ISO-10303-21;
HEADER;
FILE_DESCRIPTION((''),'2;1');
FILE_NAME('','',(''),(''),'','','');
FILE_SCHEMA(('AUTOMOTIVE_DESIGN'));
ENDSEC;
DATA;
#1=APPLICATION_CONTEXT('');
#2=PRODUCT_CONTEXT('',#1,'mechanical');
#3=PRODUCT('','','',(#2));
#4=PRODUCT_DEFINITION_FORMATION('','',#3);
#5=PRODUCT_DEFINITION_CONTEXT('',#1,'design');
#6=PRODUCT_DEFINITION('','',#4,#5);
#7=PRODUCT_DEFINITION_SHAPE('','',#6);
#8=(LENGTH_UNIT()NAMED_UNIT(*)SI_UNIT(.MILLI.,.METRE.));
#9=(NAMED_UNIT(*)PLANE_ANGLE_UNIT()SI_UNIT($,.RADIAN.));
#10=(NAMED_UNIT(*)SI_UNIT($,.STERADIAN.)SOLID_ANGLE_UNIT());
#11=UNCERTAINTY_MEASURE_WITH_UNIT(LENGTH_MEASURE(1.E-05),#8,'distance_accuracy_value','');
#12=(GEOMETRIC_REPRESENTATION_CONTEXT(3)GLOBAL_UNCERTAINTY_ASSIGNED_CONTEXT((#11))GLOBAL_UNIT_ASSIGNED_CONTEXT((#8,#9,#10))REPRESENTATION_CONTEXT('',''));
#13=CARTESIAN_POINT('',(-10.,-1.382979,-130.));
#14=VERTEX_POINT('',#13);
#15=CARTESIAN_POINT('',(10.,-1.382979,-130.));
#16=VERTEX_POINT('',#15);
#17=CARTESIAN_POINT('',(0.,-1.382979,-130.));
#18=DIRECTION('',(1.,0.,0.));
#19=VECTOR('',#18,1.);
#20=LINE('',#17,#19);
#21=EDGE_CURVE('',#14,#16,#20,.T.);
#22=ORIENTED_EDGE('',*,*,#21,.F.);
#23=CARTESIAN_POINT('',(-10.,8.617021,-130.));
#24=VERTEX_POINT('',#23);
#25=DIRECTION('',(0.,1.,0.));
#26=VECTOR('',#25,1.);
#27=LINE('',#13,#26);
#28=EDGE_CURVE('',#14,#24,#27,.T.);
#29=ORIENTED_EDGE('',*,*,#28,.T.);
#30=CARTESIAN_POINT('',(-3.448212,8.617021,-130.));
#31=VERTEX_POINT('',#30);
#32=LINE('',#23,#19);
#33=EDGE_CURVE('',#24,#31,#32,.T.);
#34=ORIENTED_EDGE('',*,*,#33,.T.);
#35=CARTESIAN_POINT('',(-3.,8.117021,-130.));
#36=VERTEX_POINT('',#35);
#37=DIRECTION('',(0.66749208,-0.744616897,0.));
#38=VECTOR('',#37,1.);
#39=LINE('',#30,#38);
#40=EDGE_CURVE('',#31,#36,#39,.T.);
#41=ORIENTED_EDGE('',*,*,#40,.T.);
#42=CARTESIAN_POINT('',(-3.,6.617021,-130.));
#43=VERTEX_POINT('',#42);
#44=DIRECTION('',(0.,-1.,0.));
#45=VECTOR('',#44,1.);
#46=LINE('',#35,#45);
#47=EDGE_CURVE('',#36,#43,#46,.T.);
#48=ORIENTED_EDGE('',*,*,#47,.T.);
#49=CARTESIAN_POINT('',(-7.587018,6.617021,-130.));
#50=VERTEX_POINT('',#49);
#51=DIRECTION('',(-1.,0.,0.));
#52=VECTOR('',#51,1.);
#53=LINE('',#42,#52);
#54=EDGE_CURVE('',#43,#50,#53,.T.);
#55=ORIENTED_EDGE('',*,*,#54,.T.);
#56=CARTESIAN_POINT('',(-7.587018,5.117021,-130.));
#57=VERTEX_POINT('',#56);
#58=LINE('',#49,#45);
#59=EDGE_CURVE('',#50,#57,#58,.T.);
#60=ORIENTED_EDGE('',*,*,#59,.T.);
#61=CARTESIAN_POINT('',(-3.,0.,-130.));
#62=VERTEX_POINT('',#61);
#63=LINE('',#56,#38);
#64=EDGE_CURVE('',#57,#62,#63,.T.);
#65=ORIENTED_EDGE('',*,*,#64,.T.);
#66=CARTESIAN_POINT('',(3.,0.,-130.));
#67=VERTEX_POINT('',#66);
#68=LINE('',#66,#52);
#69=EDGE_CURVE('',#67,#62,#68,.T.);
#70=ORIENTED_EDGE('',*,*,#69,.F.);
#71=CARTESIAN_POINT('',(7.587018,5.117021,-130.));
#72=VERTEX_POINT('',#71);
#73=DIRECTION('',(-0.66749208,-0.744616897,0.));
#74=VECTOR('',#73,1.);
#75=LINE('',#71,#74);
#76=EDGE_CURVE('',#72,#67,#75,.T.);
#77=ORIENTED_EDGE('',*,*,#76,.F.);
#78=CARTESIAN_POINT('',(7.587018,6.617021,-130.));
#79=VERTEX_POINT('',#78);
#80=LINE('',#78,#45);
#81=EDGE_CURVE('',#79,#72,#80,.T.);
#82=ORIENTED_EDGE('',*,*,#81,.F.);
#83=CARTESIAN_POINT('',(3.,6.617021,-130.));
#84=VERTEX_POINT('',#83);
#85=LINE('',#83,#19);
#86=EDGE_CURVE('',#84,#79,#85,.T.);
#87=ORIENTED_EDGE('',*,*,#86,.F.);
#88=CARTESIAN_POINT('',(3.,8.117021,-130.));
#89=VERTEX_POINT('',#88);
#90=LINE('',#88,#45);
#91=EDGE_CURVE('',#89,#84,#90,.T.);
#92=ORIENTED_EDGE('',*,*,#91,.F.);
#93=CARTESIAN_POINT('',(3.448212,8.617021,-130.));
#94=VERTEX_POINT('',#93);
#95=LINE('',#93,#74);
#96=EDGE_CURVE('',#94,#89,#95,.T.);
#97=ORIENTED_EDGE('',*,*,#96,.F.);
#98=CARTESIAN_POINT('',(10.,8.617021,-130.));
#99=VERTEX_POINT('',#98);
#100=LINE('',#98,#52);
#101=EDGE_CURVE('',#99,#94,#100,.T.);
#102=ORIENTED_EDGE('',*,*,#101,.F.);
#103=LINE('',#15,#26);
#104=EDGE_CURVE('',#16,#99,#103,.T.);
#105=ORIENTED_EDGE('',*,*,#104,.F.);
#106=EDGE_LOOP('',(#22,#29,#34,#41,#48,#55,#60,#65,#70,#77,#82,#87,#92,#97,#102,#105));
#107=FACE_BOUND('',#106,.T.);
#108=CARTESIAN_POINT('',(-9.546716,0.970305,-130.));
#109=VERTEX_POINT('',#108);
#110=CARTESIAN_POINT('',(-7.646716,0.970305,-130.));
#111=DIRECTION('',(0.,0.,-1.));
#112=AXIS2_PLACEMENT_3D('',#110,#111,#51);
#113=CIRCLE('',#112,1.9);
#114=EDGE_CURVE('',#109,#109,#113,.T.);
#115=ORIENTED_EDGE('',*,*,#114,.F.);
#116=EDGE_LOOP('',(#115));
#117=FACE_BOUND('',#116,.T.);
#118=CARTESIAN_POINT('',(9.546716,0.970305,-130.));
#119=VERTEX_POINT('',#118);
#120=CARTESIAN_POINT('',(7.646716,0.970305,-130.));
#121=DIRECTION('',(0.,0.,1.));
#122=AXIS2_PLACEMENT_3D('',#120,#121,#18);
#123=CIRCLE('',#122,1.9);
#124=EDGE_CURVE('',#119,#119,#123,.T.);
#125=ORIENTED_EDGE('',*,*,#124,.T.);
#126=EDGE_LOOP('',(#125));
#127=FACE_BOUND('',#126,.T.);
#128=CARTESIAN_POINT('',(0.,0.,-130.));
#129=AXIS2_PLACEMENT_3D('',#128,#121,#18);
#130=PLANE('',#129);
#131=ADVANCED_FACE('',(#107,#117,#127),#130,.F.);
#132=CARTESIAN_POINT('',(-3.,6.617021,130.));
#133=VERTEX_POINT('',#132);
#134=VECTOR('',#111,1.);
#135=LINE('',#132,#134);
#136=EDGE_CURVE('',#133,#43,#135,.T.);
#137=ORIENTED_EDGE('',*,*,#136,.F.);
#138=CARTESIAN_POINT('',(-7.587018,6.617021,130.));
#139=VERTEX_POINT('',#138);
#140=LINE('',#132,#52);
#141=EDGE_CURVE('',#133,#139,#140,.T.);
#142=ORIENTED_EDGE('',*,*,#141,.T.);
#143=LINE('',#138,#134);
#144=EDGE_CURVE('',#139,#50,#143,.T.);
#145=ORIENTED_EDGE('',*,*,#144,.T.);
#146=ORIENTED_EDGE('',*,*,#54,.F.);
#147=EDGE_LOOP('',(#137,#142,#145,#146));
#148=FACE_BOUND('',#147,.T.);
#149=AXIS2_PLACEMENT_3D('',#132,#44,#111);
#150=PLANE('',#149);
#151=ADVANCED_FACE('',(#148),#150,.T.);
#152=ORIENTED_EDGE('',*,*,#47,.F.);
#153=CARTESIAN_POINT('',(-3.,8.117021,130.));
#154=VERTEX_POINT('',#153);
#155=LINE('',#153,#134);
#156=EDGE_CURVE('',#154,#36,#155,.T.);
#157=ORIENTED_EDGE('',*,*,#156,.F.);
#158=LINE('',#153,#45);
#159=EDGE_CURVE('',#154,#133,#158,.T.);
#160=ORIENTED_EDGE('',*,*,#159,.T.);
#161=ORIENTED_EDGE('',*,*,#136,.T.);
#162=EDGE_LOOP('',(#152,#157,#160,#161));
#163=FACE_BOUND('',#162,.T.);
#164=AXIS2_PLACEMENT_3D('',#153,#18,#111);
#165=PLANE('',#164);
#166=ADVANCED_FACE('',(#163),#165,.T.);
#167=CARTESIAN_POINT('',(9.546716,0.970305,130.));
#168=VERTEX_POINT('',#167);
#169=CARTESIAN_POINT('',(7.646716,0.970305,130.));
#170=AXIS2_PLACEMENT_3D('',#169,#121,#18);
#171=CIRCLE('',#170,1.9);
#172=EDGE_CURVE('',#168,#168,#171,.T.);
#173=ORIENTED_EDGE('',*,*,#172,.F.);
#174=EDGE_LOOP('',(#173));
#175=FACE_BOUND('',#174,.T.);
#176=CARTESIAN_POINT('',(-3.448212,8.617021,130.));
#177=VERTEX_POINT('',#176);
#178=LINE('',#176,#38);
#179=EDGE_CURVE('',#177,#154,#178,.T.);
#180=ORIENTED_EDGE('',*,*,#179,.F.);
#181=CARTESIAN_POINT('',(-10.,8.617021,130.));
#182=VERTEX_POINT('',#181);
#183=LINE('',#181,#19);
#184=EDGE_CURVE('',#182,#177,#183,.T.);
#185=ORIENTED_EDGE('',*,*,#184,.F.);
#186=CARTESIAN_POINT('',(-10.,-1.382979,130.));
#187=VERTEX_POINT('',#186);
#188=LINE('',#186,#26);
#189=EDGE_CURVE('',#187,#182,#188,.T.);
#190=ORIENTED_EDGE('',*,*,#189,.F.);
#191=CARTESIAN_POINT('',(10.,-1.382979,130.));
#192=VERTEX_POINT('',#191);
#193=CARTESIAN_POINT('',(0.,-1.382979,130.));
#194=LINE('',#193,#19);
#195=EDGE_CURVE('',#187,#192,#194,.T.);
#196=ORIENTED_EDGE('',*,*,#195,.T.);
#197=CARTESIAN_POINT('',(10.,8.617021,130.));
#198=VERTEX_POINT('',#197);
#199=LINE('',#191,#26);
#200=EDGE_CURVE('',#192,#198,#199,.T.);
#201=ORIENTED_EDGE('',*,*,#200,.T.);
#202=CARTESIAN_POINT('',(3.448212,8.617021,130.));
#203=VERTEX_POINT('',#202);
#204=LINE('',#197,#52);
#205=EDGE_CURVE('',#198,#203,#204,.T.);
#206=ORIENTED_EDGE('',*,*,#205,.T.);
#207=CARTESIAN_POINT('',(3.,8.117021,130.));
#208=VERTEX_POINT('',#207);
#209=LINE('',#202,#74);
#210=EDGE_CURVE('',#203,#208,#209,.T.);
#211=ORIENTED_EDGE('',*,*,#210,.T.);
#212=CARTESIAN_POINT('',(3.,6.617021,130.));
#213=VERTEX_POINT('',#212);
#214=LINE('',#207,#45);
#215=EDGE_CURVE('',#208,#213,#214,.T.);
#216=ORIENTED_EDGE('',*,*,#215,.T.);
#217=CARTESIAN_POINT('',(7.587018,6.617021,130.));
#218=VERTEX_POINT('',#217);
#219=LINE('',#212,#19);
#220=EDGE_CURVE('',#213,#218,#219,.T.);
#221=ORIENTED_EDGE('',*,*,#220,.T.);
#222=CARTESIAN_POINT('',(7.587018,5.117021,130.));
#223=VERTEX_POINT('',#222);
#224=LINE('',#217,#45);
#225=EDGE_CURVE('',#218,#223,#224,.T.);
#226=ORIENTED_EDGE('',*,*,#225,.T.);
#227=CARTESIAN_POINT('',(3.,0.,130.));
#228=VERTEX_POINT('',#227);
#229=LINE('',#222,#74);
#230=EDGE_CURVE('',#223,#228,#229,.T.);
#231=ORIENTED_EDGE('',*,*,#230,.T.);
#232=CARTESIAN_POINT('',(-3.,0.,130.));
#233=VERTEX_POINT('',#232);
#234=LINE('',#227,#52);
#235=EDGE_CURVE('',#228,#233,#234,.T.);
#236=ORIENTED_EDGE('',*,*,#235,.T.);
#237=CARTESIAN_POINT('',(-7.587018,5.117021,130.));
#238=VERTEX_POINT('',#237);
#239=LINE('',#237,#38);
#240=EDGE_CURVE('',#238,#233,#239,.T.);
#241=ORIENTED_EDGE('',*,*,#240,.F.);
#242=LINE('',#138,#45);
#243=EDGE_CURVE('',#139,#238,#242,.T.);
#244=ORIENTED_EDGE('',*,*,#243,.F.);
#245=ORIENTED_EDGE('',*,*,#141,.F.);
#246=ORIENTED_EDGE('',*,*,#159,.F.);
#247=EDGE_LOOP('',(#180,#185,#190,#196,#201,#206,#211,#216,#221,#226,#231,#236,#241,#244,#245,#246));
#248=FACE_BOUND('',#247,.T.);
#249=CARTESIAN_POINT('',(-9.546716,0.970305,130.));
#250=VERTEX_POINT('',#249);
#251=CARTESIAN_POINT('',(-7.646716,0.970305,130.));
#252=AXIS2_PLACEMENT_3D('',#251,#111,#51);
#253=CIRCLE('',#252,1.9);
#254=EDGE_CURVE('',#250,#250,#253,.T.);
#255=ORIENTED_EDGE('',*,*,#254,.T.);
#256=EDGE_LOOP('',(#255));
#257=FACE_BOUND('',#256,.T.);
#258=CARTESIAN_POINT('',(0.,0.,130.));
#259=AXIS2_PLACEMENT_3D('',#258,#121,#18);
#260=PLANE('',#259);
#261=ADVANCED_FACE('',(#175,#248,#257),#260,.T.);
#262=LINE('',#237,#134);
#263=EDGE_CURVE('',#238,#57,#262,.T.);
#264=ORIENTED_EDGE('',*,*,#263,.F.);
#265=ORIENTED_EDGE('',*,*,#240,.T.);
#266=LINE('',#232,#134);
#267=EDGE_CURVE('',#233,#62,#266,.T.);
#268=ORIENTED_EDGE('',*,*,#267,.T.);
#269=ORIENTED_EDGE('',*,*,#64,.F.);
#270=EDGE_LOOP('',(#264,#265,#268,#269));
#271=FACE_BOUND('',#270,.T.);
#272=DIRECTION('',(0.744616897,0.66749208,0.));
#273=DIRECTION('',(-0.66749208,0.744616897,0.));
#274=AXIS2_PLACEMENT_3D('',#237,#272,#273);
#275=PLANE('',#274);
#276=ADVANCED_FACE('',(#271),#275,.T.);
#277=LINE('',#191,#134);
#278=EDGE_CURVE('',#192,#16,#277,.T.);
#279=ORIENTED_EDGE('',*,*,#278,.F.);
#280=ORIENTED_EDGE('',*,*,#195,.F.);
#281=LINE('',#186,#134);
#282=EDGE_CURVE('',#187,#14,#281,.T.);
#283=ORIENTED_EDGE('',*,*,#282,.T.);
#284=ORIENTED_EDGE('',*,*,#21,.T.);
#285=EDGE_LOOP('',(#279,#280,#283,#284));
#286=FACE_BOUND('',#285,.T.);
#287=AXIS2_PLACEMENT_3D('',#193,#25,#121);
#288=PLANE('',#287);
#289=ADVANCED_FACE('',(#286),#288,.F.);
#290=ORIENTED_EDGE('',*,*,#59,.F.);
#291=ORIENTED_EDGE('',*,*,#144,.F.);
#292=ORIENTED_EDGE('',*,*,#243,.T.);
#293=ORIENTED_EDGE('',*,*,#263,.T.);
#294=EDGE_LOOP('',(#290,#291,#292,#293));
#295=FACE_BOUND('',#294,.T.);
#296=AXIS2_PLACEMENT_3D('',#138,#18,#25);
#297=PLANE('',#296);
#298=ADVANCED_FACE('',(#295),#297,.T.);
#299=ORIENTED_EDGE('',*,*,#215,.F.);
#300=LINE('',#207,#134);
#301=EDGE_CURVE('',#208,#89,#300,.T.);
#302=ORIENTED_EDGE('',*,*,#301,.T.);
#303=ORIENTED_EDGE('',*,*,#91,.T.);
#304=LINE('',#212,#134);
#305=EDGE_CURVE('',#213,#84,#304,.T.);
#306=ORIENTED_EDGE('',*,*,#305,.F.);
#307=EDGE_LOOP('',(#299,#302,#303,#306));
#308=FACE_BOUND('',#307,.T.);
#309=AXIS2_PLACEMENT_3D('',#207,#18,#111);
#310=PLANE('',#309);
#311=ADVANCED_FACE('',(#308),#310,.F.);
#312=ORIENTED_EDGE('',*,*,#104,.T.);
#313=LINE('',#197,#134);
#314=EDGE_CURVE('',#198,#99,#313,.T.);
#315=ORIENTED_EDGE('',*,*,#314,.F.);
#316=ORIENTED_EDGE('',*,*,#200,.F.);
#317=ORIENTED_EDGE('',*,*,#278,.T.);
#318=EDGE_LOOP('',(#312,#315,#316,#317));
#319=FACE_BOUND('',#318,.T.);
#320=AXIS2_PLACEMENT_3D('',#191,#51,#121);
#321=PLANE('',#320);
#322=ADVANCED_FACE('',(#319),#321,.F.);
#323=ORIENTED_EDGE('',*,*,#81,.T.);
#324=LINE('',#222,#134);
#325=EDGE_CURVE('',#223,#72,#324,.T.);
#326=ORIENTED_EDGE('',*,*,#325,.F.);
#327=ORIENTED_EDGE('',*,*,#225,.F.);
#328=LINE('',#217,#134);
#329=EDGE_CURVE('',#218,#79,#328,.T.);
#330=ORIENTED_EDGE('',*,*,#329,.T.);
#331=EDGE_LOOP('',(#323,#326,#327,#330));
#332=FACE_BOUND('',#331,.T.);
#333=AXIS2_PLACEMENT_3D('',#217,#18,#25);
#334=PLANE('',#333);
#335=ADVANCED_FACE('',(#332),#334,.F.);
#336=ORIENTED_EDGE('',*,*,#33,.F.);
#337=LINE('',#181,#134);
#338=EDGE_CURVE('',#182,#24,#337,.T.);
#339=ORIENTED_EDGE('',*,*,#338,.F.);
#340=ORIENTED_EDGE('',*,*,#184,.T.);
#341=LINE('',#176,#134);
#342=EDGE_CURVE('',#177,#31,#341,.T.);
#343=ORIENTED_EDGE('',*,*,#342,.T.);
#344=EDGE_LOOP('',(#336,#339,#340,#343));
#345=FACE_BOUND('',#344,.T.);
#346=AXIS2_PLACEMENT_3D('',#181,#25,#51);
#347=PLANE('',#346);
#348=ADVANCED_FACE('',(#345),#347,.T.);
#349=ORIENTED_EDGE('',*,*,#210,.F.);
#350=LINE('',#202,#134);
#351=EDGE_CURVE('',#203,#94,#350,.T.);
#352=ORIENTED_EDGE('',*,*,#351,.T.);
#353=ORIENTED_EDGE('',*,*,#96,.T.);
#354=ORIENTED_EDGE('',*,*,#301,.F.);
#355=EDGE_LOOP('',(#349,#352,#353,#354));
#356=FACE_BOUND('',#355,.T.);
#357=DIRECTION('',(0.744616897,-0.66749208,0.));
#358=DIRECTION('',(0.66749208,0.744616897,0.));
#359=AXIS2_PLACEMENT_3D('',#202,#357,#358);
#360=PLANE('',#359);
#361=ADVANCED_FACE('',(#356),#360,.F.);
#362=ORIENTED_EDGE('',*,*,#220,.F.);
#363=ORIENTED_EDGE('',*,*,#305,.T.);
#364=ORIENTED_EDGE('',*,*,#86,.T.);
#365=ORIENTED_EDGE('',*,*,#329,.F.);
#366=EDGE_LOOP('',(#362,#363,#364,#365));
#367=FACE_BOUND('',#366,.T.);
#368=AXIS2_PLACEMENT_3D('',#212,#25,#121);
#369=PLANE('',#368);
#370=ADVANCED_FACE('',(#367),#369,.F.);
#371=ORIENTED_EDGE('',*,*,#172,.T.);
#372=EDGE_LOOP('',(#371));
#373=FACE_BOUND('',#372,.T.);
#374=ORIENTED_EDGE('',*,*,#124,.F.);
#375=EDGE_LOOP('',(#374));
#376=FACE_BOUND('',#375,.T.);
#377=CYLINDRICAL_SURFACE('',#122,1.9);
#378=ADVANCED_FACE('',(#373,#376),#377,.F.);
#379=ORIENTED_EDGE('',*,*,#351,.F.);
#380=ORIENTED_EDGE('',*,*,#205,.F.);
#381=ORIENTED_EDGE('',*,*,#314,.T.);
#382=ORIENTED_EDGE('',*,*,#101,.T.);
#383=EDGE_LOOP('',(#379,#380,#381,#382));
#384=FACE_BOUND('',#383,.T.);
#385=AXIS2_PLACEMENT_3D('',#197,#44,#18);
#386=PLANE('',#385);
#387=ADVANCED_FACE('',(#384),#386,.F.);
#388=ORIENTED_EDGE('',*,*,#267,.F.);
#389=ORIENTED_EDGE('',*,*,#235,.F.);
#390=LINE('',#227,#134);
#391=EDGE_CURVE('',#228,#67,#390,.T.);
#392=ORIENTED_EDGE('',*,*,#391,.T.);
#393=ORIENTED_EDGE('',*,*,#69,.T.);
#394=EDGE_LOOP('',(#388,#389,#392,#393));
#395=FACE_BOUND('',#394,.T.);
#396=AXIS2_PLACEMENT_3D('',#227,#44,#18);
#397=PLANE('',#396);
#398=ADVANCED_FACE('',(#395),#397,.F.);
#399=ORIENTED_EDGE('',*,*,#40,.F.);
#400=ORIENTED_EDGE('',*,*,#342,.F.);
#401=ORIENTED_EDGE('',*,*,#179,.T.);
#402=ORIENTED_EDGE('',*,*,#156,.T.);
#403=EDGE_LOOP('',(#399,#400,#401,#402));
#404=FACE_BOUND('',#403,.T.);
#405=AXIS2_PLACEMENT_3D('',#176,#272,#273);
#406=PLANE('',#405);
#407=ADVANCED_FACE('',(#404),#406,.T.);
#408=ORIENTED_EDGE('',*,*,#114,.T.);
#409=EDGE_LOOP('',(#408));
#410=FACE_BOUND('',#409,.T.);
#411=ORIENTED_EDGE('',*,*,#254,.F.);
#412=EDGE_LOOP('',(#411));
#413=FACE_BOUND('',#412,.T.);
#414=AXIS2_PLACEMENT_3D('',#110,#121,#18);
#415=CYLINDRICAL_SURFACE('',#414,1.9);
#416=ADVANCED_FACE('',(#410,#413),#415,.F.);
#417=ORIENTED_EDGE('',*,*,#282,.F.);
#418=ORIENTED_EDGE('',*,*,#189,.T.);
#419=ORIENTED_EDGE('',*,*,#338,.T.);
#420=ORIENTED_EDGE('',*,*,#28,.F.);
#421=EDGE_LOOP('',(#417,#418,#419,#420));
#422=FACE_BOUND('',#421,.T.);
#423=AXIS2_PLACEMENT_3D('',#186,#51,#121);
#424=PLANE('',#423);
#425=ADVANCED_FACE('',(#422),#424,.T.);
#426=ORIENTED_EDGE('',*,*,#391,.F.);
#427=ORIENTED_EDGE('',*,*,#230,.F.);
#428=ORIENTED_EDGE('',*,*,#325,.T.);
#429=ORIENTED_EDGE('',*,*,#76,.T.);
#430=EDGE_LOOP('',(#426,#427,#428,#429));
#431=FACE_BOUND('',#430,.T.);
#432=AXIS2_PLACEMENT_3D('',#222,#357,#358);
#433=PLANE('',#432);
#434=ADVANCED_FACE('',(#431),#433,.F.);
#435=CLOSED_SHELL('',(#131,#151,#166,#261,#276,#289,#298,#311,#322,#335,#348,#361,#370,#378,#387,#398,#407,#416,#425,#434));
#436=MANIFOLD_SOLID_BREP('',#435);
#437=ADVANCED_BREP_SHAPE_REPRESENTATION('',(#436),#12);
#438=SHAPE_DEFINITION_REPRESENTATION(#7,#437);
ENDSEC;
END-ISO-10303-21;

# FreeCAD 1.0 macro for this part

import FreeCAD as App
import Part
import Sketcher
Q = App.Units.Quantity

doc = App.newDocument("Part")
body = doc.addObject("PartDesign::Body", "Body")

# Sketch on XY plane
sketch1 = body.newObject("Sketcher::SketchObject", "Sketch")
sketch1.AttachmentSupport = (doc.getObject("XY_Plane"), [""])
sketch1.MapMode = "FlatFace"
sketch1.addGeometry([
    Part.LineSegment(App.Vector(0, 0, 0), App.Vector(0, -1.4, 0)),  # 0
    Part.LineSegment(App.Vector(0, -1.4, 0), App.Vector(10, -1.4, 0)),  # 1
    Part.LineSegment(App.Vector(10, -1.4, 0), App.Vector(10, 8.6, 0)),  # 2
    Part.LineSegment(App.Vector(10, 8.6, 0), App.Vector(3.4, 8.6, 0)),  # 3
    Part.LineSegment(App.Vector(3.4, 8.6, 0), App.Vector(3, 8.1, 0)),  # 4
    Part.LineSegment(App.Vector(3, 8.1, 0), App.Vector(3, 6.6, 0)),  # 5
    Part.LineSegment(App.Vector(3, 6.6, 0), App.Vector(7.6, 6.6, 0)),  # 6
    Part.LineSegment(App.Vector(7.6, 6.6, 0), App.Vector(7.6, 5.1, 0)),  # 7
    Part.LineSegment(App.Vector(7.6, 5.1, 0), App.Vector(3, 0, 0)),  # 8
    Part.LineSegment(App.Vector(3, 0, 0), App.Vector(0, 0, 0)),  # 9
], False)
sketch1.addConstraint([
    Sketcher.Constraint("Coincident", 0, 2, 1, 1),
    Sketcher.Constraint("Coincident", 1, 2, 2, 1),
    Sketcher.Constraint("Coincident", 2, 2, 3, 1),
    Sketcher.Constraint("Coincident", 3, 2, 4, 1),
    Sketcher.Constraint("Coincident", 4, 2, 5, 1),
    Sketcher.Constraint("Coincident", 5, 2, 6, 1),
    Sketcher.Constraint("Coincident", 6, 2, 7, 1),
    Sketcher.Constraint("Coincident", 7, 2, 8, 1),
    Sketcher.Constraint("Coincident", 8, 2, 9, 1),
    Sketcher.Constraint("Coincident", 9, 2, 0, 1),
    Sketcher.Constraint("Vertical", 0),
    Sketcher.Constraint("Horizontal", 1),
    Sketcher.Constraint("Vertical", 2),
    Sketcher.Constraint("Horizontal", 3),
    Sketcher.Constraint("Vertical", 5),
    Sketcher.Constraint("Horizontal", 6),
    Sketcher.Constraint("Vertical", 7),
    Sketcher.Constraint("Horizontal", 9),
    Sketcher.Constraint("Coincident", 9, 2, -1, 1),
    Sketcher.Constraint("Parallel", 4, 8),
    Sketcher.Constraint("Vertical", 5, 2, 8, 2),
    Sketcher.Constraint("Equal", 1, 2),
    Sketcher.Constraint("Equal", 5, 7),
    Sketcher.Constraint("DistanceX", 1, 1, 1, 2, Q("10 mm")),
    Sketcher.Constraint("DistanceX", 9, 2, 9, 1, Q("3 mm")),
    Sketcher.Constraint("DistanceY", 5, 2, 5, 1, Q("1.5 mm")),
    Sketcher.Constraint("DistanceY", 5, 2, 3, 2, Q("2 mm")),
    Sketcher.Constraint("DistanceX", 3, 2, 3, 1, Q("6.551788 mm")),
    Sketcher.Constraint("DistanceX", 6, 1, 6, 2, Q("4.587018 mm")),
])
pad1 = body.newObject("PartDesign::Pad", "Pad")
pad1.Profile = sketch1
pad1.Length = 260
pad1.Midplane = True
doc.recompute()

mirrored = body.newObject("PartDesign::Mirrored", "Mirrored")
mirrored.Originals = [pad1]
mirrored.MirrorPlane = (doc.getObject("YZ_Plane"), [""])
body.Tip = mirrored

# Sketch on XY plane
sketch2 = body.newObject("Sketcher::SketchObject", "Sketch001")
sketch2.AttachmentSupport = (doc.getObject("XY_Plane"), [""])
sketch2.MapMode = "FlatFace"
sketch2.AttachmentOffset = App.Placement(App.Vector(0, 0, 130), App.Rotation())
sketch2.addGeometry(Part.Circle(App.Vector(7.6, 1, 0), App.Vector(0, 0, 1), 1.9), False)
sketch2.addConstraint([
    Sketcher.Constraint("Diameter", 0, Q("3.8 mm")),
    Sketcher.Constraint("DistanceX", -1, 1, 0, 3, Q("7.646716 mm")),
    Sketcher.Constraint("DistanceY", -1, 1, 0, 3, Q("0.970305 mm")),
])
pocket1 = body.newObject("PartDesign::Pocket", "Pocket")
pocket1.Profile = sketch2
pocket1.Type = "ThroughAll"
doc.recompute()

mirrored2 = body.newObject("PartDesign::Mirrored", "Mirrored001")
mirrored2.Originals = [pocket1]
mirrored2.MirrorPlane = (doc.getObject("YZ_Plane"), [""])
body.Tip = mirrored2

doc.recompute()
